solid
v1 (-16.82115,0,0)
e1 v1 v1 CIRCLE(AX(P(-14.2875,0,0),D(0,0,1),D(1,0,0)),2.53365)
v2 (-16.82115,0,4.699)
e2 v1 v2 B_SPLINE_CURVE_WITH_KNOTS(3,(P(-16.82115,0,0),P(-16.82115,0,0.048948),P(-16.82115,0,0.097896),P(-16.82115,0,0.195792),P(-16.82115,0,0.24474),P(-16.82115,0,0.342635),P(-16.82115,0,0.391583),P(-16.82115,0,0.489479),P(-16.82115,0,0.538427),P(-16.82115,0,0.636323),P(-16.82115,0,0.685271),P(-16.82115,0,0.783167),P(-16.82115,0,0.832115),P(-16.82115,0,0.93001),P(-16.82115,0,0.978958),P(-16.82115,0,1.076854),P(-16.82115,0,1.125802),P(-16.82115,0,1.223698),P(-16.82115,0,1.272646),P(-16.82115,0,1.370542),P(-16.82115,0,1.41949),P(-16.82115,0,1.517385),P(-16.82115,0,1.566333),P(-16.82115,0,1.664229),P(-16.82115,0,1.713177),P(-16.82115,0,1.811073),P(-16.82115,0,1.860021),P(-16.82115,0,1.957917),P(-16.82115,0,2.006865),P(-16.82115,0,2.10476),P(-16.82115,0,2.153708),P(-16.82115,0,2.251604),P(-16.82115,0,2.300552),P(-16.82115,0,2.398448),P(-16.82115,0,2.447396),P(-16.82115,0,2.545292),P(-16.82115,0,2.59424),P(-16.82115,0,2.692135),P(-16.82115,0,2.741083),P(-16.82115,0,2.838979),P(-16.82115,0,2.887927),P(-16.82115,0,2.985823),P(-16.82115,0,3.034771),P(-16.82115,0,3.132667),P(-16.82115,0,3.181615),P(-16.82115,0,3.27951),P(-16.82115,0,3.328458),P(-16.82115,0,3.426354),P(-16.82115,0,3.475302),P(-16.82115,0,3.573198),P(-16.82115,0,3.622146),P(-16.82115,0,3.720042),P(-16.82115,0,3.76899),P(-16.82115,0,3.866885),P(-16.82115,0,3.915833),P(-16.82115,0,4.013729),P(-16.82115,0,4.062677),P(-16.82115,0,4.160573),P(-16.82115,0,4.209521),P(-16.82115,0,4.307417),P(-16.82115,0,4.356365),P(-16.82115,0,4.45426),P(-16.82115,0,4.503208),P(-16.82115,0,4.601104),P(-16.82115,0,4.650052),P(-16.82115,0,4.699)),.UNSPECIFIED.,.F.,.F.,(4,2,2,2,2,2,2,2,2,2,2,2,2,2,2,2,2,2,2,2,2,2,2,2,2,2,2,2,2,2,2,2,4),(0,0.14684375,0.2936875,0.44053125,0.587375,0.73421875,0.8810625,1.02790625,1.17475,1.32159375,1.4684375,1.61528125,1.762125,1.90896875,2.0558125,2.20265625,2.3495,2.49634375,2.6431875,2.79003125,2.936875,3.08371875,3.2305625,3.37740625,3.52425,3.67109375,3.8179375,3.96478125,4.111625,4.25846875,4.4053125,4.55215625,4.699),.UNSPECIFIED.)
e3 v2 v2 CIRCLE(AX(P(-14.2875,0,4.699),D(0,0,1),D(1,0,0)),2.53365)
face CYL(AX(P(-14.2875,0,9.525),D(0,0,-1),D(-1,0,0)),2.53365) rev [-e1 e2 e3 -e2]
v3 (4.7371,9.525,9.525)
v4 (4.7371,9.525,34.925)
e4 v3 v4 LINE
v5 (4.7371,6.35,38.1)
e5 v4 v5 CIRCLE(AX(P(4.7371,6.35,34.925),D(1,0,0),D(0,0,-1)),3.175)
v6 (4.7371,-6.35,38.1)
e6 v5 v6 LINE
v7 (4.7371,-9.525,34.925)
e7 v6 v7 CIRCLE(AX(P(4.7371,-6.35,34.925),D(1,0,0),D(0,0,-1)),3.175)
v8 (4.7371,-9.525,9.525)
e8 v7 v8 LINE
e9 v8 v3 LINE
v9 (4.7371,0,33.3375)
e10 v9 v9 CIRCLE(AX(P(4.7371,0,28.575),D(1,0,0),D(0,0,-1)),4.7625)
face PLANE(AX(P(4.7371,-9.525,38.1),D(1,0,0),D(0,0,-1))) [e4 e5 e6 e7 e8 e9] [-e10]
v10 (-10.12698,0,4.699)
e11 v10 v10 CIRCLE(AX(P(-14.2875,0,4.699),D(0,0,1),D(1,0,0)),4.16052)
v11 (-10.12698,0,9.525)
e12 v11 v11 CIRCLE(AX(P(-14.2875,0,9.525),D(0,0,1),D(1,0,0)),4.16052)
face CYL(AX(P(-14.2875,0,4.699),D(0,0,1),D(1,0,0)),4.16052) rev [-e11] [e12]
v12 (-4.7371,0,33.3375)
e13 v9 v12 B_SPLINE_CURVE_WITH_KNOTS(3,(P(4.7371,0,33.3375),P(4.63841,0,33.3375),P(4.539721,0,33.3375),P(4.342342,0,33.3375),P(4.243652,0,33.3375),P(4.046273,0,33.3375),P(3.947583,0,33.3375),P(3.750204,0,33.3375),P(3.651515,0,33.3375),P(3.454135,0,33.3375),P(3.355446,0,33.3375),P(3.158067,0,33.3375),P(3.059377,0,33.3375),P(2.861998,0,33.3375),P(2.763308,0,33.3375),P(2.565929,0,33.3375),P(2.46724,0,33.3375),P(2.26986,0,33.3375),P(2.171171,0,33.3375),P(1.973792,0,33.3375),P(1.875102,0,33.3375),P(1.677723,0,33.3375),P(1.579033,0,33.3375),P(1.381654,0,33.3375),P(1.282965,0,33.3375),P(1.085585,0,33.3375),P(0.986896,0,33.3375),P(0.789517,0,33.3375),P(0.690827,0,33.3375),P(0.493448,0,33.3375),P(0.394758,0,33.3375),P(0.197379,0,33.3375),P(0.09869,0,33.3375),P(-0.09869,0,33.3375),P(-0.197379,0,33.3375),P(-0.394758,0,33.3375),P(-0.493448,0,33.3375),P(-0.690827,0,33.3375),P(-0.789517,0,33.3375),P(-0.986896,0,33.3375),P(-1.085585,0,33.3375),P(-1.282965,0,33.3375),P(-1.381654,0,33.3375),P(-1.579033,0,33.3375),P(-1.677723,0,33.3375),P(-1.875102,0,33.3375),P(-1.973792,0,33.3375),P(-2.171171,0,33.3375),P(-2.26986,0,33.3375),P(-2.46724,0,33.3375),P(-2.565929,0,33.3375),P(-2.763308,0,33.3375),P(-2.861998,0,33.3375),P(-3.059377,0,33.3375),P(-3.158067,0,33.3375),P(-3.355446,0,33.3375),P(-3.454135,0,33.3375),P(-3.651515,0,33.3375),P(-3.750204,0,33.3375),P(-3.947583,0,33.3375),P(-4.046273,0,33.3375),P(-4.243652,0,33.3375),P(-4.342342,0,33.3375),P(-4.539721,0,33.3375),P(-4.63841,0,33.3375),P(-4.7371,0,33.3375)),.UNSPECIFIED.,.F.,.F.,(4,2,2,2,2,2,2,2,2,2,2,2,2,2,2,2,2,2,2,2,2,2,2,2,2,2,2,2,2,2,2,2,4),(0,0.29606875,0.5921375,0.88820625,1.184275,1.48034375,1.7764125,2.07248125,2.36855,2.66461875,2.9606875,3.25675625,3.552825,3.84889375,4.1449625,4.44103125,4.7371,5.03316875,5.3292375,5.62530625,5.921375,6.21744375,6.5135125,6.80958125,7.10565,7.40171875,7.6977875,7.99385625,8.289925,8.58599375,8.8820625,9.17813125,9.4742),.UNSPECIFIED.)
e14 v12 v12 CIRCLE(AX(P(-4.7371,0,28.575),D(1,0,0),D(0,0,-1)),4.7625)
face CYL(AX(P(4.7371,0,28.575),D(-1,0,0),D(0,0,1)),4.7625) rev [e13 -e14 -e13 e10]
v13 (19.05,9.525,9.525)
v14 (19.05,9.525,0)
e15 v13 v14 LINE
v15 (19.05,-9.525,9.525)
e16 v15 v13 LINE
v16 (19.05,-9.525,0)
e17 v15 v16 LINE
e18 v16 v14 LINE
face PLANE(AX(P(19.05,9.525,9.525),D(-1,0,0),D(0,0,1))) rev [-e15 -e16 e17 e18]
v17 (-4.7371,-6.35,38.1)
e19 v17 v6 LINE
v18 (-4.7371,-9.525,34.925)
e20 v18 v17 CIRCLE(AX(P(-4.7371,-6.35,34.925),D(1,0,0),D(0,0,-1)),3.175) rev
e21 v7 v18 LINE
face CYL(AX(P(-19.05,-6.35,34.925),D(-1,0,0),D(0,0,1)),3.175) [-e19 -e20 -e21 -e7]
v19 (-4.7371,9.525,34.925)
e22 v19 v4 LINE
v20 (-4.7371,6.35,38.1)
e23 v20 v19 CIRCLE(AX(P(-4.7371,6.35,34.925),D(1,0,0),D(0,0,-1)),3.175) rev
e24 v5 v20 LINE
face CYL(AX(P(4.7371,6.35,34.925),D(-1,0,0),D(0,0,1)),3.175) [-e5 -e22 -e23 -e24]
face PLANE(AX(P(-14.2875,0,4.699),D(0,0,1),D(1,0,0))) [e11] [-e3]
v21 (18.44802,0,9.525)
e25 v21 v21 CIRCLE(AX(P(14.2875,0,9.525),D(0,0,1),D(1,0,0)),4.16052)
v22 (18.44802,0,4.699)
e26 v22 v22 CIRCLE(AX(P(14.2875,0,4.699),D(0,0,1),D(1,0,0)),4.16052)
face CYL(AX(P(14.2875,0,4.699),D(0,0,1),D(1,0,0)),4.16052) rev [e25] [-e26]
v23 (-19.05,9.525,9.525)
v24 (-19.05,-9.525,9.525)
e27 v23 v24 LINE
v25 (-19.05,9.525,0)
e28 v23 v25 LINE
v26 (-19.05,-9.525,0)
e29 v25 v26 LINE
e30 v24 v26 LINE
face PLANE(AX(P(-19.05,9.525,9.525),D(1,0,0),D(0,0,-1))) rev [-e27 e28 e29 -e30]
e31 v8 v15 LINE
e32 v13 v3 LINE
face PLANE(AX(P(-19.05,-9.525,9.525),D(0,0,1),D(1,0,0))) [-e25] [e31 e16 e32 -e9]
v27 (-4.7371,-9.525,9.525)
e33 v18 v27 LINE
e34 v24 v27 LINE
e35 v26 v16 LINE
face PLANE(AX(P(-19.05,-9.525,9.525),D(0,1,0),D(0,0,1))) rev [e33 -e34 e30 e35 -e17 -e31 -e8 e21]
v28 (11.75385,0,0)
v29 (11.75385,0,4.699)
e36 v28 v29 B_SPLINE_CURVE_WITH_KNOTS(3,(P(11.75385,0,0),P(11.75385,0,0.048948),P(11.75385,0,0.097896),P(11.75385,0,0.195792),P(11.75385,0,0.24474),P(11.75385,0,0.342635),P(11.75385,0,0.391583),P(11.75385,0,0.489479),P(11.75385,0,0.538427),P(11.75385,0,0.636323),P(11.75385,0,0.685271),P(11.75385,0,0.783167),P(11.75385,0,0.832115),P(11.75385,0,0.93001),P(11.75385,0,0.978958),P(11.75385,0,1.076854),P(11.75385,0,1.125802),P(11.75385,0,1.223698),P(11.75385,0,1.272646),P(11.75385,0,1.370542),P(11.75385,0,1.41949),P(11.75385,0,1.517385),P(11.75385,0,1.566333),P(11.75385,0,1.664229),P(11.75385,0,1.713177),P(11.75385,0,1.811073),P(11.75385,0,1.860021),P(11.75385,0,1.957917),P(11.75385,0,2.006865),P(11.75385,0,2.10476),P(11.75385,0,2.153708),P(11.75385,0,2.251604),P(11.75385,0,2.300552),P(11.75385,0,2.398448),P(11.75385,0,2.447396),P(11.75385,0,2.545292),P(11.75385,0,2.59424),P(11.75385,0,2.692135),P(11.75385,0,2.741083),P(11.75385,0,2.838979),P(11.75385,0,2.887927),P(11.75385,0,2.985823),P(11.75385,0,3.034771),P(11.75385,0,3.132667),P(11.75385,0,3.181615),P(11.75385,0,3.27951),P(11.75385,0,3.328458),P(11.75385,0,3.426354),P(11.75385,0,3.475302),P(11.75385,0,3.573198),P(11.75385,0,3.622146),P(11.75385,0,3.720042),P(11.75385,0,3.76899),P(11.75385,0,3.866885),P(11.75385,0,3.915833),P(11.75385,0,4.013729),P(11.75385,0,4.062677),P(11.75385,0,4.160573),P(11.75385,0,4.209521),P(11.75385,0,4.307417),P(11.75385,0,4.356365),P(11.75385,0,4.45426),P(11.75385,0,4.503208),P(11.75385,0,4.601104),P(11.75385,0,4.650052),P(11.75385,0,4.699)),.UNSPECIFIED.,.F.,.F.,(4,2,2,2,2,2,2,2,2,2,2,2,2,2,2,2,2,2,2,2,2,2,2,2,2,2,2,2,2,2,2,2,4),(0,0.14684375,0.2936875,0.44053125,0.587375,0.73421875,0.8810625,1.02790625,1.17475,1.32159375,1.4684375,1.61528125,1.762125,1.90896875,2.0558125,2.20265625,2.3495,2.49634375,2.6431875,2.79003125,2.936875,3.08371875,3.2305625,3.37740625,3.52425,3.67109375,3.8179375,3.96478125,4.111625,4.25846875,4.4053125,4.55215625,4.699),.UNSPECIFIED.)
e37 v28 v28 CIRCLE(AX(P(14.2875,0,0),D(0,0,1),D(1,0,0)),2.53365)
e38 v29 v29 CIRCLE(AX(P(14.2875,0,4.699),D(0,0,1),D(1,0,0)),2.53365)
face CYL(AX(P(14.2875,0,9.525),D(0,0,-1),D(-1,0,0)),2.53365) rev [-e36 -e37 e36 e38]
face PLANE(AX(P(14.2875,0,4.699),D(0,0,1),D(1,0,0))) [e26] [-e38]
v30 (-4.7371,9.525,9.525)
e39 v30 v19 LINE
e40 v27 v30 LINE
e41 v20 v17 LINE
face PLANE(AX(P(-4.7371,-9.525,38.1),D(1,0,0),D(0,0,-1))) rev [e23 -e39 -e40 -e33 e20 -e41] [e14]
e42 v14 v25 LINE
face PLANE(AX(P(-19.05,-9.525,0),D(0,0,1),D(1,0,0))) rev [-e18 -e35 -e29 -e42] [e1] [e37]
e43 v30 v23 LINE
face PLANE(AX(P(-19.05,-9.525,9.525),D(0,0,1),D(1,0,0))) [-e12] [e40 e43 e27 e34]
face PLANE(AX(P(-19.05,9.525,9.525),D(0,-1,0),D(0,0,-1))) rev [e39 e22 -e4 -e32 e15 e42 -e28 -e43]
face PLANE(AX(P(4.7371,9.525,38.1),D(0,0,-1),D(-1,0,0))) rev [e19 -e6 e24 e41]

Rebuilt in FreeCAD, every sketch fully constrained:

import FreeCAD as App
import Part
import Sketcher
Q = App.Units.Quantity


def edges_at(feature, points):
    """Names of the edges that pass closest to the given points."""
    edges = feature.Shape.Edges
    near = lambda p: min(range(len(edges)), key=lambda i: edges[i].distToShape(Part.Vertex(*p))[0])
    return sorted({f"Edge{near(p) + 1}" for p in points})


def add_polygon(sketch, points):
    """Adds a closed chain of lines whose ends are joined by coincident constraints."""
    first, n = sketch.GeometryCount, len(points)
    for a, b in zip(points, points[1:] + points[:1]):
        sketch.addGeometry(Part.LineSegment(App.Vector(*a, 0), App.Vector(*b, 0)), False)
    for i in range(n):
        sketch.addConstraint(Sketcher.Constraint("Coincident", first + i, 2, first + (i + 1) % n, 1))

doc = App.newDocument("Part")
body = doc.addObject("PartDesign::Body", "Body")

# Sketch on XY plane
sketch1 = body.newObject("Sketcher::SketchObject", "Sketch")
sketch1.AttachmentSupport = (doc.getObject("XY_Plane"), [""])
sketch1.MapMode = "FlatFace"
add_polygon(sketch1, [(-19.05, 9.525), (-19.05, -9.525), (19.05, -9.525), (19.05, 9.525)])  # lines 0-3
sketch1.addGeometry(Part.Circle(App.Vector(-14.2875, 0, 0), App.Vector(0, 0, 1), 2.53365), False)  # 4
sketch1.addGeometry(Part.Circle(App.Vector(14.2875, 0, 0), App.Vector(0, 0, 1), 2.53365), False)  # 5
sketch1.addConstraint([
    Sketcher.Constraint("Vertical", 0),
    Sketcher.Constraint("Horizontal", 1),
    Sketcher.Constraint("Vertical", 2),
    Sketcher.Constraint("Horizontal", 3),
    Sketcher.Constraint("Equal", 4, 5),
    Sketcher.Constraint("Symmetric", 4, 3, 5, 3, -1, 1),
    Sketcher.Constraint("Symmetric", 0, 2, 2, 2, -1, 1),
    Sketcher.Constraint("PointOnObject", 4, 3, -1),
    Sketcher.Constraint("DistanceX", 1, 1, 1, 2, Q("1.5 in")),
    Sketcher.Constraint("Diameter", 4, Q("0.1995 in")),
    Sketcher.Constraint("DistanceY", 0, 2, 0, 1, Q("0.75 in")),
    Sketcher.Constraint("DistanceX", 4, 3, -1, 1, Q("0.5625 in")),
])
pad1 = body.newObject("PartDesign::Pad", "Pad")
pad1.Profile = sketch1
pad1.Length = Q("0.375 in")

# Sketch on XY plane
sketch2 = body.newObject("Sketcher::SketchObject", "Sketch001")
sketch2.AttachmentSupport = (doc.getObject("XY_Plane"), [""])
sketch2.MapMode = "FlatFace"
sketch2.AttachmentOffset = App.Placement(App.Vector(0, 0, 0.375 * 25.4), App.Rotation())
sketch2.addGeometry([
    Part.Circle(App.Vector(-14.2875, 0, 0), App.Vector(0, 0, 1), 4.16052),
    Part.Circle(App.Vector(14.2875, 0, 0), App.Vector(0, 0, 1), 4.16052),
], False)
sketch2.addConstraint([
    Sketcher.Constraint("Equal", 0, 1),
    Sketcher.Constraint("Symmetric", 0, 3, 1, 3, -1, 1),
    Sketcher.Constraint("PointOnObject", 0, 3, -1),
    Sketcher.Constraint("Diameter", 0, Q("0.3276 in")),
    Sketcher.Constraint("DistanceX", 0, 3, -1, 1, Q("0.5625 in")),
])
pocket1 = body.newObject("PartDesign::Pocket", "Pocket")
pocket1.Profile = sketch2
pocket1.Length = Q("0.19 in")

# Sketch on YZ plane
sketch3 = body.newObject("Sketcher::SketchObject", "Sketch002")
sketch3.AttachmentSupport = (doc.getObject("YZ_Plane"), [""])
sketch3.MapMode = "FlatFace"
add_polygon(sketch3, [(9.525, 38.1), (-9.525, 38.1), (-9.525, 9.525), (9.525, 9.525)])  # lines 0-3
sketch3.addGeometry(Part.Circle(App.Vector(0, 28.575, 0), App.Vector(0, 0, 1), 4.7625), False)  # 4
sketch3.addConstraint([
    Sketcher.Constraint("Horizontal", 0),
    Sketcher.Constraint("Vertical", 1),
    Sketcher.Constraint("Horizontal", 2),
    Sketcher.Constraint("Vertical", 3),
    Sketcher.Constraint("PointOnObject", 4, 3, -2),
    Sketcher.Constraint("Diameter", 4, Q("0.375 in")),
    Sketcher.Constraint("DistanceX", 0, 2, 0, 1, Q("0.75 in")),
    Sketcher.Constraint("DistanceY", -1, 1, 0, 2, Q("1.5 in")),
    Sketcher.Constraint("DistanceY", 1, 2, 1, 1, Q("1.125 in")),
    Sketcher.Constraint("DistanceY", 1, 2, 4, 3, Q("0.75 in")),
    Sketcher.Constraint("DistanceX", 0, 2, -1, 1, Q("0.375 in")),
])
pad2 = body.newObject("PartDesign::Pad", "Pad001")
pad2.Profile = sketch3
pad2.Type = "TwoLengths"
pad2.Length = Q("0.1865 in")
pad2.Length2 = Q("0.1865 in")
doc.recompute()

fillet = body.newObject("PartDesign::Fillet", "Fillet")
fillet.Base = (pad2, edges_at(pad2, [(0, -9.525, 38.1), (0, 9.525, 38.1)]))
fillet.Radius = Q("0.125 in")

doc.recompute()
